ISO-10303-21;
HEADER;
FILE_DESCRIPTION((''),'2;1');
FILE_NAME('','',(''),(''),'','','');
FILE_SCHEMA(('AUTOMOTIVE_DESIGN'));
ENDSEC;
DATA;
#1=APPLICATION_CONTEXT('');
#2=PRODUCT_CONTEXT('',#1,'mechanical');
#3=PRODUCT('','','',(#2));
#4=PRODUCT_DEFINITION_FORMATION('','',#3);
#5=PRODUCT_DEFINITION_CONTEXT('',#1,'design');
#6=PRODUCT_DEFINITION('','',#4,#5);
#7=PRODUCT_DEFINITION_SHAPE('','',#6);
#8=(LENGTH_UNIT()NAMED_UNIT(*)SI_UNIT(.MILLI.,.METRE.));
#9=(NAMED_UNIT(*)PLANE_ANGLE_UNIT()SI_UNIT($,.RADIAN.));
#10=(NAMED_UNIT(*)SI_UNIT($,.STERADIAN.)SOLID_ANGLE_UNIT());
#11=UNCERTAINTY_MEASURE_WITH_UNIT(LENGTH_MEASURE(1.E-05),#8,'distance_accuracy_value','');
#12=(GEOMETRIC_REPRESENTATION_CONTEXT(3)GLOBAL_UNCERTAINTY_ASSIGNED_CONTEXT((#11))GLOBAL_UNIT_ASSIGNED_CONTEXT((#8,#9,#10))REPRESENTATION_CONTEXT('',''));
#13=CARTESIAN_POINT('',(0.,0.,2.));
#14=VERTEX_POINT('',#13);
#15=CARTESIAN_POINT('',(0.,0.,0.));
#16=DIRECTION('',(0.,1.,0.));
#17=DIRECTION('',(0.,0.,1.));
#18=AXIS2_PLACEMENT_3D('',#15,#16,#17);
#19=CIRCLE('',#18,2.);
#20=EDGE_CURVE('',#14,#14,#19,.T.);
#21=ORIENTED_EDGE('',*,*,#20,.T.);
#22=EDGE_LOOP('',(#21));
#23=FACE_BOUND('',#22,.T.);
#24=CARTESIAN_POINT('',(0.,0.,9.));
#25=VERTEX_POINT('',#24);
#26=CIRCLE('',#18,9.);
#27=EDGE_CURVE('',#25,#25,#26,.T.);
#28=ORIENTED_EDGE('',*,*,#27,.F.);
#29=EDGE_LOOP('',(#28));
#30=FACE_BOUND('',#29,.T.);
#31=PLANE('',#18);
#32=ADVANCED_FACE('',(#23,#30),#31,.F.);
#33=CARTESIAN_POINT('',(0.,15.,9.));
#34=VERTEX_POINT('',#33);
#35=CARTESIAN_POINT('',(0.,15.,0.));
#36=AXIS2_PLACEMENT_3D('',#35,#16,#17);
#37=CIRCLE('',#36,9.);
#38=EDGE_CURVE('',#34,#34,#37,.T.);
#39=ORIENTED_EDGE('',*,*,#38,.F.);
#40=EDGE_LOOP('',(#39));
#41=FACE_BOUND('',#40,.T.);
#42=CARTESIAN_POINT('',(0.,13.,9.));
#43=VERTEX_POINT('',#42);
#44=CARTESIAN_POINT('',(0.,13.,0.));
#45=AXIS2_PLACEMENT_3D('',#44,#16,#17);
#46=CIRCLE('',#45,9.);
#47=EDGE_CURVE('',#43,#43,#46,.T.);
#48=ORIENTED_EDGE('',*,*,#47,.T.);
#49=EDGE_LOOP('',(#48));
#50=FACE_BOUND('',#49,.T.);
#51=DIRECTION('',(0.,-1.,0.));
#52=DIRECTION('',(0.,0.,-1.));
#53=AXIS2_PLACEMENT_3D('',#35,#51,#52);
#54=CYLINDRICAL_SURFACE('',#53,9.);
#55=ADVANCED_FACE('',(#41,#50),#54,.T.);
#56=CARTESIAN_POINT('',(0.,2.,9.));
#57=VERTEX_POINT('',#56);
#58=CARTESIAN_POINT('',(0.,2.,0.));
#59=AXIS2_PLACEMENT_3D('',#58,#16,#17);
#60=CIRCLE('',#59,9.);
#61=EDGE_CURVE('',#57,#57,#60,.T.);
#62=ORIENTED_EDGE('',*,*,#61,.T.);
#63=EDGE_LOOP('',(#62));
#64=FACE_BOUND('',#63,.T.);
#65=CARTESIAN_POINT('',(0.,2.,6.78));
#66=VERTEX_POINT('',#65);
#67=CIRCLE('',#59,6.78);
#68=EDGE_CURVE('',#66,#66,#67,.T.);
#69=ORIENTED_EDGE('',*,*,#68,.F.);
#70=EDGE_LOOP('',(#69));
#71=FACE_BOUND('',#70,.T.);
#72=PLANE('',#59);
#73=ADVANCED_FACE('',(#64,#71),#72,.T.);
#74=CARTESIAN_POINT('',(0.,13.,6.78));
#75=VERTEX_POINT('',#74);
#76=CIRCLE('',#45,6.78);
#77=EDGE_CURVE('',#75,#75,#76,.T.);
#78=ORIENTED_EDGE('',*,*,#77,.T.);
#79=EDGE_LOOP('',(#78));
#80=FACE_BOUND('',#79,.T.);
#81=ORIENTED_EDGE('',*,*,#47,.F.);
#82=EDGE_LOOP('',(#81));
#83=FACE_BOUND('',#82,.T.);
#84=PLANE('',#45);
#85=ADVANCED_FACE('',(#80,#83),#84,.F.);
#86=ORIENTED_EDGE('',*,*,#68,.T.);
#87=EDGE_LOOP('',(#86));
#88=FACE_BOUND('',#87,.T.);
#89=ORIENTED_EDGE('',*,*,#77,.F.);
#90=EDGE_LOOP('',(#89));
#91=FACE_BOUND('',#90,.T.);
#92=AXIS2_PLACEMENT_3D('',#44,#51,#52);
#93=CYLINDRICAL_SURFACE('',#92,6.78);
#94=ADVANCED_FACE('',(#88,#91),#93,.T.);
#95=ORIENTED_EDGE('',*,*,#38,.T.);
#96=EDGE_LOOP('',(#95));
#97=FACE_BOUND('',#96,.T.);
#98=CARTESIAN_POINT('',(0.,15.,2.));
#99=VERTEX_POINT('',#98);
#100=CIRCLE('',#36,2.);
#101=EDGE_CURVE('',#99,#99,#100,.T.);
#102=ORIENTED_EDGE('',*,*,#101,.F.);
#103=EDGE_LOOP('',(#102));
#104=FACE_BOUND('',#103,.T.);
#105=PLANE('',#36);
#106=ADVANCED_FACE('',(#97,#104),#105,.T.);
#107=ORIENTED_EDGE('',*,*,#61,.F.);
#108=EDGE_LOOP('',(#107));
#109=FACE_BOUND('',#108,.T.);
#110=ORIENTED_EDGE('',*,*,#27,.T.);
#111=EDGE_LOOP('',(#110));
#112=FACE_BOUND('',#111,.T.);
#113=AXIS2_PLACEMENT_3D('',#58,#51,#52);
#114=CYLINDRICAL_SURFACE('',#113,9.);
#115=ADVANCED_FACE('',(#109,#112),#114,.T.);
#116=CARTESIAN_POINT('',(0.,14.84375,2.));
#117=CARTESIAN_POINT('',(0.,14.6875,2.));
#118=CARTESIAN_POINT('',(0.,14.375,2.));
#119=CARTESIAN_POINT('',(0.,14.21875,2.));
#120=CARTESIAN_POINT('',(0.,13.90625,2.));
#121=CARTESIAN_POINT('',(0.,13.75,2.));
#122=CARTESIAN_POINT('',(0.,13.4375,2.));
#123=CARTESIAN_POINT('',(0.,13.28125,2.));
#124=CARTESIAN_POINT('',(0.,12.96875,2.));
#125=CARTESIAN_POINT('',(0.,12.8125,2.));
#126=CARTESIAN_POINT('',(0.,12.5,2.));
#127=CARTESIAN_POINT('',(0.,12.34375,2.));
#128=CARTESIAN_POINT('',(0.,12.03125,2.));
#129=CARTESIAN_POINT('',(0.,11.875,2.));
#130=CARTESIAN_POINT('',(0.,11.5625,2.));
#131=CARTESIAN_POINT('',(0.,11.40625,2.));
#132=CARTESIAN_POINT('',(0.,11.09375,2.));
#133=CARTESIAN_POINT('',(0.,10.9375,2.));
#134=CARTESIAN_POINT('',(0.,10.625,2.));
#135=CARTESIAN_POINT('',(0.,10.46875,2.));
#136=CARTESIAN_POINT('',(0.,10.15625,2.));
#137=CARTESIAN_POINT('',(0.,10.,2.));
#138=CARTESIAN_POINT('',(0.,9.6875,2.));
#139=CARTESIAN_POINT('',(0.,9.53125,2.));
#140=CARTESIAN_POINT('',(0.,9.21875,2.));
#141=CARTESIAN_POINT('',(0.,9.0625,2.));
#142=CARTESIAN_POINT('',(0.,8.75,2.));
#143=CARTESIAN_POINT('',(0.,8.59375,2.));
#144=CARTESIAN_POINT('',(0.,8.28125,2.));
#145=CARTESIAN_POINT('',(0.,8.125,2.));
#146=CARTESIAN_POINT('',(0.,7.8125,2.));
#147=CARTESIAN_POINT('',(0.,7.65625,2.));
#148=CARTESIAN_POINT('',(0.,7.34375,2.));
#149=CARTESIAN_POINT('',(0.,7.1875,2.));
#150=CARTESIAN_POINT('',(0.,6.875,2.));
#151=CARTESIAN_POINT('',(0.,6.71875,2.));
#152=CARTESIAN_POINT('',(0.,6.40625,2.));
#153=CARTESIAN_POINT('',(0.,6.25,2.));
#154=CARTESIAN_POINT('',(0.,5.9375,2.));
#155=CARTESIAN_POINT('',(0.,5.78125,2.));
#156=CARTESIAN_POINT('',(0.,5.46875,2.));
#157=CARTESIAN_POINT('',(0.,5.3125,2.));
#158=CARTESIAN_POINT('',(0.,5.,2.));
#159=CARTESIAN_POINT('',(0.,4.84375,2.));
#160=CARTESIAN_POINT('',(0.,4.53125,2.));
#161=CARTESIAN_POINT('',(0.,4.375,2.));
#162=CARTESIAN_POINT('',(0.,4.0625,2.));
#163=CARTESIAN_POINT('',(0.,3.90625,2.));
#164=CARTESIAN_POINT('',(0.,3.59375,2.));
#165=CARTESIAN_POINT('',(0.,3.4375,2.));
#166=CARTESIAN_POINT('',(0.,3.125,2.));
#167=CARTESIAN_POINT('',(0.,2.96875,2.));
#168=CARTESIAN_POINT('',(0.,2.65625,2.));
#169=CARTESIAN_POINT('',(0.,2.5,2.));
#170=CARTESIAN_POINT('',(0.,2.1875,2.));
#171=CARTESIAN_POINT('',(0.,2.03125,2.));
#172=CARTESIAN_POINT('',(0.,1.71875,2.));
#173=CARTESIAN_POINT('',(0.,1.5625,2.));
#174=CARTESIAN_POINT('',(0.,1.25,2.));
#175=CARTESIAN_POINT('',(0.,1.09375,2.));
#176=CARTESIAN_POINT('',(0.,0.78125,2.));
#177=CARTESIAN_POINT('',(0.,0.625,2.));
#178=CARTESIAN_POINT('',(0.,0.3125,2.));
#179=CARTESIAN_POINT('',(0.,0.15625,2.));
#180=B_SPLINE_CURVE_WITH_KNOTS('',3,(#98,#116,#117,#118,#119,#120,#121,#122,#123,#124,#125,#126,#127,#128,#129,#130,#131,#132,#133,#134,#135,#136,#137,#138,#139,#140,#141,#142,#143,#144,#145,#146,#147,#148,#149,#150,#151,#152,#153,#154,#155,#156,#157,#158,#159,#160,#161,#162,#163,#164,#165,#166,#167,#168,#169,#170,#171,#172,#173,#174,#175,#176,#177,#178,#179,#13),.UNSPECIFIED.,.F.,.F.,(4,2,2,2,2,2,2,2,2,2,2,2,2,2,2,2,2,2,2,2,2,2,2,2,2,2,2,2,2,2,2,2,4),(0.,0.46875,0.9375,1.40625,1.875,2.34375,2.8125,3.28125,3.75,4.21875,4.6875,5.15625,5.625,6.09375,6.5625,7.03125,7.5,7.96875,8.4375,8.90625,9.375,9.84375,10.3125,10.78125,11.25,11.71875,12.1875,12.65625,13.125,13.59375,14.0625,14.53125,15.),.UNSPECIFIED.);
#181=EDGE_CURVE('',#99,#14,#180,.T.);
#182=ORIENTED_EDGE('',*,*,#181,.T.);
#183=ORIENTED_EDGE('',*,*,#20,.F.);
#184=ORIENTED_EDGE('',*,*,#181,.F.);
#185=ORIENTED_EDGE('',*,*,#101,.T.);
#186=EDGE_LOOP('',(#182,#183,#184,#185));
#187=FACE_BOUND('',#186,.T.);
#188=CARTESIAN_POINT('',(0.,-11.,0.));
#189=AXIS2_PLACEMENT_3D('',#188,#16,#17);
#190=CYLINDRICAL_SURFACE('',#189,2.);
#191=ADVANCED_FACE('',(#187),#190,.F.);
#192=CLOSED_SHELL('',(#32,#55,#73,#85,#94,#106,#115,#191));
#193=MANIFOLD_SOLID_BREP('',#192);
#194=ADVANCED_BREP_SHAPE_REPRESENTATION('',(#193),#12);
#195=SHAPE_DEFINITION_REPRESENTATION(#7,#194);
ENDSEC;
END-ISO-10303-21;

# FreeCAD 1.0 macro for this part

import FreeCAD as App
import Part
import Sketcher
from FreeCAD import Vector
Q = App.Units.Quantity

doc = App.newDocument("Part")
body = doc.addObject("PartDesign::Body", "Body")

# Sketch on XZ plane
sketch1 = doc.addObject("Sketcher::SketchObject", "Sketch")
body.addObject(sketch1)
sketch1.AttachmentSupport = (doc.XZ_Plane, [""])
sketch1.MapMode = "FlatFace"
sketch1.addGeometry(Part.Circle(Vector(0, 0, 0), Vector(0, 0, 1), 9), False)
sketch1.addConstraint(Sketcher.Constraint("Coincident", 0, 3, -1, 1))
sketch1.addConstraint(Sketcher.Constraint("Diameter", 0, Q("18 mm")))
pad1 = doc.addObject("PartDesign::Pad", "Pad")
body.addObject(pad1)
pad1.Profile = sketch1
pad1.Length = 2
pad1.Reversed = True

# Sketch on XZ plane
sketch2 = doc.addObject("Sketcher::SketchObject", "Sketch001")
body.addObject(sketch2)
sketch2.AttachmentSupport = (doc.XZ_Plane, [""])
sketch2.MapMode = "FlatFace"
sketch2.AttachmentOffset = App.Placement(Vector(0, 0, -2), App.Rotation())
sketch2.addGeometry(Part.Circle(Vector(0, 0, 0), Vector(0, 0, 1), 7), False)
sketch2.addConstraint(Sketcher.Constraint("Coincident", 0, 3, -1, 1))
sketch2.addConstraint(Sketcher.Constraint("Diameter", 0, Q("13.56 mm")))
pad2 = doc.addObject("PartDesign::Pad", "Pad001")
body.addObject(pad2)
pad2.Profile = sketch2
pad2.Length = 11
pad2.Reversed = True

# Sketch on XZ plane
sketch3 = doc.addObject("Sketcher::SketchObject", "Sketch002")
body.addObject(sketch3)
sketch3.AttachmentSupport = (doc.XZ_Plane, [""])
sketch3.MapMode = "FlatFace"
sketch3.AttachmentOffset = App.Placement(Vector(0, 0, -13), App.Rotation())
sketch3.addGeometry(Part.Circle(Vector(0, 0, 0), Vector(0, 0, 1), 9), False)
sketch3.addConstraint(Sketcher.Constraint("Coincident", 0, 3, -1, 1))
sketch3.addConstraint(Sketcher.Constraint("Diameter", 0, Q("18 mm")))
pad3 = doc.addObject("PartDesign::Pad", "Pad002")
body.addObject(pad3)
pad3.Profile = sketch3
pad3.Length = 2
pad3.Reversed = True

# Sketch on XZ plane
sketch4 = doc.addObject("Sketcher::SketchObject", "Sketch003")
body.addObject(sketch4)
sketch4.AttachmentSupport = (doc.XZ_Plane, [""])
sketch4.MapMode = "FlatFace"
sketch4.AttachmentOffset = App.Placement(Vector(0, 0, -15), App.Rotation())
sketch4.addGeometry(Part.Circle(Vector(0, 0, 0), Vector(0, 0, 1), 2), False)
sketch4.addConstraint(Sketcher.Constraint("Coincident", 0, 3, -1, 1))
sketch4.addConstraint(Sketcher.Constraint("Diameter", 0, Q("4 mm")))
pocket1 = doc.addObject("PartDesign::Pocket", "Pocket")
body.addObject(pocket1)
pocket1.Profile = sketch4
pocket1.Length = 26
pocket1.Reversed = True

doc.recompute()
